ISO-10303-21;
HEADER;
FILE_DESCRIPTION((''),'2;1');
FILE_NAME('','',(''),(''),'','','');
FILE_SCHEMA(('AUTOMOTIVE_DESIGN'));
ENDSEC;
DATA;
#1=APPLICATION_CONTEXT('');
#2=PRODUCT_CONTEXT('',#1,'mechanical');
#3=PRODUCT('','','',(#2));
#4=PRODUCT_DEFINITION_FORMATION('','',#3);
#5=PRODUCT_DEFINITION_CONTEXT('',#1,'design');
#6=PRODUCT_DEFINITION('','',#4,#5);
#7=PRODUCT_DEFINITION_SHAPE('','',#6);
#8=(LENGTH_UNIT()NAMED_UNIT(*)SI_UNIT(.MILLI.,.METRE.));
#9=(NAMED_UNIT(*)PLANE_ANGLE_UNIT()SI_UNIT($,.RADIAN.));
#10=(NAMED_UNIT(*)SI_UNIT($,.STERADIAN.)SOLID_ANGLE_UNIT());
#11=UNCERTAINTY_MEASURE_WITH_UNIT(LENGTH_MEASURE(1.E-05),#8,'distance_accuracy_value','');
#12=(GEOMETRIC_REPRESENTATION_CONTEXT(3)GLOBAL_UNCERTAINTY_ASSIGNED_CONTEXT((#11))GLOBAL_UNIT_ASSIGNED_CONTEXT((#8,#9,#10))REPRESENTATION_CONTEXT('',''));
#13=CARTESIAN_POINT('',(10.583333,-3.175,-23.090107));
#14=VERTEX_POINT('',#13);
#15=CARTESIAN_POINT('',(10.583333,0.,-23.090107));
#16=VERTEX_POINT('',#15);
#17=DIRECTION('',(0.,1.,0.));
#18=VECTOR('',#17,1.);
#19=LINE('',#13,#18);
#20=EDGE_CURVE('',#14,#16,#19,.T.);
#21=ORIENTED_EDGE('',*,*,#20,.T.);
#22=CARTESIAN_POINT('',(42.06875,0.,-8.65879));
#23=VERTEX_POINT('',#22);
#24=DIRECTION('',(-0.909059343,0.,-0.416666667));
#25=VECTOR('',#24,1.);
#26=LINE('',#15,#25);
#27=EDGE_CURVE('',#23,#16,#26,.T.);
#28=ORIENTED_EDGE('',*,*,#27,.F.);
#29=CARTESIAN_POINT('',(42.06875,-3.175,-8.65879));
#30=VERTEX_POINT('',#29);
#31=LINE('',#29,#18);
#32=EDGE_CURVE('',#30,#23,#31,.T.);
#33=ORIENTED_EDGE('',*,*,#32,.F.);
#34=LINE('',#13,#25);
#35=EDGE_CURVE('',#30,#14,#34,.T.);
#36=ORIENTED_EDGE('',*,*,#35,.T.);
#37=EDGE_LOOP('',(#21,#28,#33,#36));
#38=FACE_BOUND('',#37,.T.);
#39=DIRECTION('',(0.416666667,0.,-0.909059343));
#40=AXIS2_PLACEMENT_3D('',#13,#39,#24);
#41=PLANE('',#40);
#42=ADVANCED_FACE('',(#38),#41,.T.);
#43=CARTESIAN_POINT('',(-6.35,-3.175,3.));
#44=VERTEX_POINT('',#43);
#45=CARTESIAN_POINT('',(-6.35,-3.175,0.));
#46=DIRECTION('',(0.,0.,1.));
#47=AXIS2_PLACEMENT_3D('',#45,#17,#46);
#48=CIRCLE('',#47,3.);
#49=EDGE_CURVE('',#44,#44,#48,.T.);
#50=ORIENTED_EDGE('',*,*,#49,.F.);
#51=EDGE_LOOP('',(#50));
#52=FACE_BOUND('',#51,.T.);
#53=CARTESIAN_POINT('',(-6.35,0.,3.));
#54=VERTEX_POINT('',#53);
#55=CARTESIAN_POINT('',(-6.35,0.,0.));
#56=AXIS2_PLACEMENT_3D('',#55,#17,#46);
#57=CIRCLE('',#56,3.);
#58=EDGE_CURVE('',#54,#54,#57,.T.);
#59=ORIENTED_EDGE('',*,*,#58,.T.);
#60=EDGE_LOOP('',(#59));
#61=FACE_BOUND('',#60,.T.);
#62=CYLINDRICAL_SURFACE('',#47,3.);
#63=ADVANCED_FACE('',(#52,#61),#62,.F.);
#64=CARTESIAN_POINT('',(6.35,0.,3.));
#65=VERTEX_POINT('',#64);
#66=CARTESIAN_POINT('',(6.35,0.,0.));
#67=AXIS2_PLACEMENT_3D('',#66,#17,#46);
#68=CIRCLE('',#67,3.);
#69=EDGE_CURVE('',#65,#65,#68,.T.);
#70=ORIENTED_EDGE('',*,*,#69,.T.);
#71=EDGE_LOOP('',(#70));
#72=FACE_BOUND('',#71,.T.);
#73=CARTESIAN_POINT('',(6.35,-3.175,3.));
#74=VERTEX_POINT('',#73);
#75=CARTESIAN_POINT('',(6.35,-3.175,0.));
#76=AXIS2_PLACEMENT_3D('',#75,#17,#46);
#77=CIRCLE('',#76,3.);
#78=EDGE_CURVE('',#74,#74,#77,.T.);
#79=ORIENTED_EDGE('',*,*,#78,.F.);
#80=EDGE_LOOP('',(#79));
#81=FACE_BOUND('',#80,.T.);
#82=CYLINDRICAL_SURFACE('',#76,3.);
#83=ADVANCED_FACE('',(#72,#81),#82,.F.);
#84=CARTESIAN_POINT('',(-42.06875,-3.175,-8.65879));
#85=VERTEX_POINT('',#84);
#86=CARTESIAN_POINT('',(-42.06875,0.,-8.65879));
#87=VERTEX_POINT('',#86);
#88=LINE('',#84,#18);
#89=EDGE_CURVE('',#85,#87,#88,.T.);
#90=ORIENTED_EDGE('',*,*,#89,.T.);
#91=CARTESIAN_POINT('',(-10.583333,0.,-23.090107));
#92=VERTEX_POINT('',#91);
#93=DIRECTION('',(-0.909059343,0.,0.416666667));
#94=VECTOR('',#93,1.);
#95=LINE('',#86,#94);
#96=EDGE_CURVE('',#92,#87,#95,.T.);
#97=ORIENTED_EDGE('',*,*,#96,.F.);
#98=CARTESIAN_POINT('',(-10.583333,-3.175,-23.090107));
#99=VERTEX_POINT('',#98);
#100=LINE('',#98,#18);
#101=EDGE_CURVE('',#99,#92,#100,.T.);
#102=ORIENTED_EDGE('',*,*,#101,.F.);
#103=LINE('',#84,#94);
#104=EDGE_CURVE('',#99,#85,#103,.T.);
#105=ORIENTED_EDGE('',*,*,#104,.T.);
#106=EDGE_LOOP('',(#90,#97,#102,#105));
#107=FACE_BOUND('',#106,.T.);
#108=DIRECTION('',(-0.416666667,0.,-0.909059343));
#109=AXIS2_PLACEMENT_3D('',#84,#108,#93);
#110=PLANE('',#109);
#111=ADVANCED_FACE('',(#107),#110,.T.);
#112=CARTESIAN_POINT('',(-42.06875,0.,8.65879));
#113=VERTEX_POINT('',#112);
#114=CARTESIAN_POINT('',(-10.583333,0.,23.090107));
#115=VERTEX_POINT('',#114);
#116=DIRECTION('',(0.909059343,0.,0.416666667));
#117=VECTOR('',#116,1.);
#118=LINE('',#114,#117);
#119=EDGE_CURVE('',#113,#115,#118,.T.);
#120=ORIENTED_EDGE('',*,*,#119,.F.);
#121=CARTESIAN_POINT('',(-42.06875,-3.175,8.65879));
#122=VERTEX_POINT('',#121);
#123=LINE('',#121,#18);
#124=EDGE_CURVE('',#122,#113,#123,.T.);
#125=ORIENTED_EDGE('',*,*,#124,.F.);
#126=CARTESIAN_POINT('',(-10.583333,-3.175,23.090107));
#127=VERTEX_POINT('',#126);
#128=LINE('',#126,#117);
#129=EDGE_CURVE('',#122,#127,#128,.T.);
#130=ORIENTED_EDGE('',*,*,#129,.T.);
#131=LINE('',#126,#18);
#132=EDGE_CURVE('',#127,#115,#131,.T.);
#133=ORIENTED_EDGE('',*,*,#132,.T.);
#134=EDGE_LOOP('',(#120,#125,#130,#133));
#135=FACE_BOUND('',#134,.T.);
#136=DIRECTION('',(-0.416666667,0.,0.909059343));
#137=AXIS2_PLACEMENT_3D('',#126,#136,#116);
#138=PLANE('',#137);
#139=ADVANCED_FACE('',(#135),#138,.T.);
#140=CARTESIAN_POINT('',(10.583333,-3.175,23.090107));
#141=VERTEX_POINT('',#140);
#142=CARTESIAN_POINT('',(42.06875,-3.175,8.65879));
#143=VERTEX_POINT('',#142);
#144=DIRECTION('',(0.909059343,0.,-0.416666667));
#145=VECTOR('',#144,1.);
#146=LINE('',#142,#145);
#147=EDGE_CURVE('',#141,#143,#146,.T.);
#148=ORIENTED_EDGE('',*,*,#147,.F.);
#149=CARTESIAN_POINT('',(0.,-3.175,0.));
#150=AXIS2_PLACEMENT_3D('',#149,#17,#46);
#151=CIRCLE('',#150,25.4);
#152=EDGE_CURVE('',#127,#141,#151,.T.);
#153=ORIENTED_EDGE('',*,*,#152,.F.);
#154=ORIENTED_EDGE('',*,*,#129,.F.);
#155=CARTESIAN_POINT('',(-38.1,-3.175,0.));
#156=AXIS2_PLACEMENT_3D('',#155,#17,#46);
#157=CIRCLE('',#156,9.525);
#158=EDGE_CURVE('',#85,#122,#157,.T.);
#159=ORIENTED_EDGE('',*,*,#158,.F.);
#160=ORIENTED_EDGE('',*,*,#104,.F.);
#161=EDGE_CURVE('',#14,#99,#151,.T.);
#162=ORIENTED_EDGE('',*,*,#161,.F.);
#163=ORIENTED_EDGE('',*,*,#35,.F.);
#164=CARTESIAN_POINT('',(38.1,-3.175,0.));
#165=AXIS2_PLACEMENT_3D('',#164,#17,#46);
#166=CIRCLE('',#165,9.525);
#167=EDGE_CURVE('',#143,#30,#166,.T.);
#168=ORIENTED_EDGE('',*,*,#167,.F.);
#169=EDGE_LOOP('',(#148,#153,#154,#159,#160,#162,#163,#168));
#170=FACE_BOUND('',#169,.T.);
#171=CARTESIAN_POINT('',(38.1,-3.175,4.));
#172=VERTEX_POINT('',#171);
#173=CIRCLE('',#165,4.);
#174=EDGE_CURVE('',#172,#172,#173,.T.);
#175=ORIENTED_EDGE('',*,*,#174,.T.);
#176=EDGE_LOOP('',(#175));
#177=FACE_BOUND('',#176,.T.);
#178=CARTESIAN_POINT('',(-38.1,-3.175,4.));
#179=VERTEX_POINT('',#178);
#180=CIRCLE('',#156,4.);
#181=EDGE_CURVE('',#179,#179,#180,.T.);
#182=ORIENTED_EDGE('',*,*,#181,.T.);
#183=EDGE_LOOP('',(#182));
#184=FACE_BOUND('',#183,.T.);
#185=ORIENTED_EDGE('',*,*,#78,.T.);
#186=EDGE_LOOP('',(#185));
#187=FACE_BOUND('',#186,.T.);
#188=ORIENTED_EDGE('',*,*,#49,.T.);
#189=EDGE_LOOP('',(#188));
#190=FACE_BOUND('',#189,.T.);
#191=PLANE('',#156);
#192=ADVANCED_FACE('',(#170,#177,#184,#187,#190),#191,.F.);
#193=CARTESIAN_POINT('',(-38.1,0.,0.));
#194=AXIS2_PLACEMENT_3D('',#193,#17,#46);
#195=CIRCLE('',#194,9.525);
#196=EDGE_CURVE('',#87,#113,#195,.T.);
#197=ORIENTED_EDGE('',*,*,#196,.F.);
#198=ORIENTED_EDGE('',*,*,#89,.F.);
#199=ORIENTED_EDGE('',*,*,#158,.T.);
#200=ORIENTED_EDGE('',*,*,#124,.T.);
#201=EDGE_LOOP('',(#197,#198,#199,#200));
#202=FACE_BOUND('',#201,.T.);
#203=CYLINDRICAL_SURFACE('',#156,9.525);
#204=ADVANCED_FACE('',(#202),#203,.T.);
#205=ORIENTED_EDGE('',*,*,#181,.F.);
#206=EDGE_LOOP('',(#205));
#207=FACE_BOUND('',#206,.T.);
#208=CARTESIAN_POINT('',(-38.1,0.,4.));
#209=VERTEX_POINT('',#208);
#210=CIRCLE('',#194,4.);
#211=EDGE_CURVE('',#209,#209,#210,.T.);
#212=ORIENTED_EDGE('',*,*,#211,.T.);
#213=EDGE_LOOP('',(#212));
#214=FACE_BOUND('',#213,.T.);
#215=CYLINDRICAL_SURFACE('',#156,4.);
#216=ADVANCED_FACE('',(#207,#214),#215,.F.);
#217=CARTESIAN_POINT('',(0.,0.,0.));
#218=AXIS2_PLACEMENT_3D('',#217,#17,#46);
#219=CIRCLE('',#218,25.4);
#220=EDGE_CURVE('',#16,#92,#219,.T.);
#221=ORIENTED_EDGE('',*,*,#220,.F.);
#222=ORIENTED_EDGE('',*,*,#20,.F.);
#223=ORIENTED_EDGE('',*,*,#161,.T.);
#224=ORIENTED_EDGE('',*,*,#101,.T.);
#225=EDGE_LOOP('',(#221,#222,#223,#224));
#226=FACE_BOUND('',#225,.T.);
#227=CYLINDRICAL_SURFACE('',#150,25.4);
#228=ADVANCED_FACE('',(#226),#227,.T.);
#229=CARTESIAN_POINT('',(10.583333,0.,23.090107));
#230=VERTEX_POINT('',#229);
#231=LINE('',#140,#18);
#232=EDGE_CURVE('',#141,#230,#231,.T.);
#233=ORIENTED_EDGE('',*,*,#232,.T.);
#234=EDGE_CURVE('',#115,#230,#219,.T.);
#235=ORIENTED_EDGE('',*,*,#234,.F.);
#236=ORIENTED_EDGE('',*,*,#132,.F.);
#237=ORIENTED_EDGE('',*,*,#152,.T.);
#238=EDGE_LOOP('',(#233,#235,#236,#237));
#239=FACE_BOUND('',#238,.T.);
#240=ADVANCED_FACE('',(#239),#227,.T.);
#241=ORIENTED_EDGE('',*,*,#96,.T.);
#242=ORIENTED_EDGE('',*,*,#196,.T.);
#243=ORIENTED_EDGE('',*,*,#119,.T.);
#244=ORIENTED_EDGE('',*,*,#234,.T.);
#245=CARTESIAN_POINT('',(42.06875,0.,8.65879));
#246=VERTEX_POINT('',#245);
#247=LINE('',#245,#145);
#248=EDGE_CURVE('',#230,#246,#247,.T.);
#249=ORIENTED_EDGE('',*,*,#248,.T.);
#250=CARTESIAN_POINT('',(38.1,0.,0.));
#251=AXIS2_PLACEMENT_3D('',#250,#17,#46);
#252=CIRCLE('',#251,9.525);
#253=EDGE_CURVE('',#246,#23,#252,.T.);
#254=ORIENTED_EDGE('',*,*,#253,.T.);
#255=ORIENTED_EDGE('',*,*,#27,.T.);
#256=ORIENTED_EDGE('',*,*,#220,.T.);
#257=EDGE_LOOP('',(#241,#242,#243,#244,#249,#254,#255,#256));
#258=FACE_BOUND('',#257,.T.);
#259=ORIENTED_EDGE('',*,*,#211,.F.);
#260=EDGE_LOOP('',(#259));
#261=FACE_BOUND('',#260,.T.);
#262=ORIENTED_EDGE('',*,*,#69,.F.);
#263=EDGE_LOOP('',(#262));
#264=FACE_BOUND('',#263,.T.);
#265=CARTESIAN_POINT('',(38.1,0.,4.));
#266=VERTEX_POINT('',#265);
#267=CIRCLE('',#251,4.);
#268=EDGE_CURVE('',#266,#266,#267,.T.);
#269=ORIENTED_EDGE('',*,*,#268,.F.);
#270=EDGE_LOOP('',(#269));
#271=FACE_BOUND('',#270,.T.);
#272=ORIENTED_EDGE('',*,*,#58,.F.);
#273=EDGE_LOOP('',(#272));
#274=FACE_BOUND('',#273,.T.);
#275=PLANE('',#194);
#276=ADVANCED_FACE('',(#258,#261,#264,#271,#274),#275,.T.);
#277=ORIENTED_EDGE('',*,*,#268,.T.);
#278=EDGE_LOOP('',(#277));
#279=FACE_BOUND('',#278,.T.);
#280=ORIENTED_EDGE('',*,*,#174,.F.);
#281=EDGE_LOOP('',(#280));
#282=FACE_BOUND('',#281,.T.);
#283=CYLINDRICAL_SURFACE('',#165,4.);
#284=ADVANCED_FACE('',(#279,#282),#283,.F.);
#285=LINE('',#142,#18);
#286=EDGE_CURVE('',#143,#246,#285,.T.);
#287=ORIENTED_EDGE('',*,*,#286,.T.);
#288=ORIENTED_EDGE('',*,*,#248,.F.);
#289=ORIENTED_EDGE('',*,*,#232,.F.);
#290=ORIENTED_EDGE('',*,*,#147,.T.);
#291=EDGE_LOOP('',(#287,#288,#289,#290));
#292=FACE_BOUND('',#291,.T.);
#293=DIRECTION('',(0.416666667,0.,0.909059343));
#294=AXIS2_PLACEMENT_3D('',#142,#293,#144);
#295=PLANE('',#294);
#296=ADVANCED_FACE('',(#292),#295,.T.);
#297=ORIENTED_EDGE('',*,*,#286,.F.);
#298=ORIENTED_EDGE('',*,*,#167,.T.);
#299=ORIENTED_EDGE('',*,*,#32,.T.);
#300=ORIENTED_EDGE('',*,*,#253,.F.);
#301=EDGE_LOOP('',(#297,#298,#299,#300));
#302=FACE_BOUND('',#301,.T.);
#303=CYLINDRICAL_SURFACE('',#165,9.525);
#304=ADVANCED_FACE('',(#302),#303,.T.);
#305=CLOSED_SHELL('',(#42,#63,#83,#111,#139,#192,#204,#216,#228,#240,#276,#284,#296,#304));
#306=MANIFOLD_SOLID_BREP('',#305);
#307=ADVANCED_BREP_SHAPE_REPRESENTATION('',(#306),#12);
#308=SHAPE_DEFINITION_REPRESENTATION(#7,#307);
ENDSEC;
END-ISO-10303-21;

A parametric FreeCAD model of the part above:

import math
import FreeCAD as App
import Part
import Sketcher
Q = App.Units.Quantity

doc = App.newDocument("Part")
body = doc.addObject("PartDesign::Body", "Body")

# Sketch on XZ plane
sketch1 = body.newObject("Sketcher::SketchObject", "Sketch")
sketch1.AttachmentSupport = (doc.getObject("XZ_Plane"), [""])
sketch1.MapMode = "FlatFace"
sketch1.addGeometry(Part.LineSegment(App.Vector(-10.6, -23.1, 0), App.Vector(-42.1, -8.7, 0)), False)
sketch1.addGeometry(Part.ArcOfCircle(Part.Circle(App.Vector(-38.1, 0, 0), App.Vector(0, 0, 1), 9.5), math.radians(115), math.radians(245)), False)
sketch1.addGeometry(Part.LineSegment(App.Vector(-42.1, 8.7, 0), App.Vector(-10.6, 23.1, 0)), False)
sketch1.addGeometry(Part.ArcOfCircle(Part.Circle(App.Vector(0, 0, 0), App.Vector(0, 0, 1), 25.4), math.radians(65), math.radians(115)), False)
sketch1.addGeometry(Part.LineSegment(App.Vector(10.6, 23.1, 0), App.Vector(42.1, 8.7, 0)), False)
sketch1.addGeometry(Part.ArcOfCircle(Part.Circle(App.Vector(38.1, 0, 0), App.Vector(0, 0, 1), 9.5), math.radians(-65), math.radians(65)), False)
sketch1.addGeometry(Part.LineSegment(App.Vector(42.1, -8.7, 0), App.Vector(10.6, -23.1, 0)), False)
sketch1.addGeometry(Part.ArcOfCircle(Part.Circle(App.Vector(0, 0, 0), App.Vector(0, 0, 1), 25.4), math.radians(-115), math.radians(-65)), False)
sketch1.addGeometry(Part.Circle(App.Vector(6.3, 0, 0), App.Vector(0, 0, 1), 3), False)
sketch1.addGeometry(Part.Circle(App.Vector(-6.3, 0, 0), App.Vector(0, 0, 1), 3), False)
sketch1.addGeometry(Part.Circle(App.Vector(38.1, 0, 0), App.Vector(0, 0, 1), 4), False)
sketch1.addGeometry(Part.Circle(App.Vector(-38.1, 0, 0), App.Vector(0, 0, 1), 4), False)
sketch1.addConstraint(Sketcher.Constraint("Tangent", 0, 2, 1, 2))
sketch1.addConstraint(Sketcher.Constraint("Tangent", 1, 1, 2, 1))
sketch1.addConstraint(Sketcher.Constraint("Tangent", 2, 2, 3, 2))
sketch1.addConstraint(Sketcher.Constraint("Tangent", 3, 1, 4, 1))
sketch1.addConstraint(Sketcher.Constraint("Tangent", 4, 2, 5, 2))
sketch1.addConstraint(Sketcher.Constraint("Tangent", 5, 1, 6, 1))
sketch1.addConstraint(Sketcher.Constraint("Tangent", 6, 2, 7, 2))
sketch1.addConstraint(Sketcher.Constraint("Tangent", 7, 1, 0, 1))
sketch1.addConstraint(Sketcher.Constraint("Coincident", 3, 3, -1, 1))
sketch1.addConstraint(Sketcher.Constraint("Coincident", 7, 3, -1, 1))
sketch1.addConstraint(Sketcher.Constraint("Coincident", 10, 3, 5, 3))
sketch1.addConstraint(Sketcher.Constraint("Coincident", 11, 3, 1, 3))
sketch1.addConstraint(Sketcher.Constraint("Equal", 1, 5))
sketch1.addConstraint(Sketcher.Constraint("Equal", 3, 7))
sketch1.addConstraint(Sketcher.Constraint("Equal", 8, 9))
sketch1.addConstraint(Sketcher.Constraint("Equal", 10, 11))
sketch1.addConstraint(Sketcher.Constraint("Symmetric", 1, 3, 5, 3, -1, 1))
sketch1.addConstraint(Sketcher.Constraint("Symmetric", 8, 3, 9, 3, -1, 1))
sketch1.addConstraint(Sketcher.Constraint("PointOnObject", 1, 3, -1))
sketch1.addConstraint(Sketcher.Constraint("PointOnObject", 8, 3, -1))
sketch1.addConstraint(Sketcher.Constraint("Radius", 3, Q("1 in")))
sketch1.addConstraint(Sketcher.Constraint("Radius", 1, Q("0.375 in")))
sketch1.addConstraint(Sketcher.Constraint("DistanceX", 1, 3, 5, 3, Q("3 in")))
sketch1.addConstraint(Sketcher.Constraint("DistanceX", 9, 3, 8, 3, Q("0.5 in")))
sketch1.addConstraint(Sketcher.Constraint("Diameter", 8, Q("6 mm")))
sketch1.addConstraint(Sketcher.Constraint("Diameter", 10, Q("8 mm")))
pad1 = body.newObject("PartDesign::Pad", "Pad")
pad1.Profile = sketch1
pad1.Length = Q("0.125 in")

doc.recompute()
